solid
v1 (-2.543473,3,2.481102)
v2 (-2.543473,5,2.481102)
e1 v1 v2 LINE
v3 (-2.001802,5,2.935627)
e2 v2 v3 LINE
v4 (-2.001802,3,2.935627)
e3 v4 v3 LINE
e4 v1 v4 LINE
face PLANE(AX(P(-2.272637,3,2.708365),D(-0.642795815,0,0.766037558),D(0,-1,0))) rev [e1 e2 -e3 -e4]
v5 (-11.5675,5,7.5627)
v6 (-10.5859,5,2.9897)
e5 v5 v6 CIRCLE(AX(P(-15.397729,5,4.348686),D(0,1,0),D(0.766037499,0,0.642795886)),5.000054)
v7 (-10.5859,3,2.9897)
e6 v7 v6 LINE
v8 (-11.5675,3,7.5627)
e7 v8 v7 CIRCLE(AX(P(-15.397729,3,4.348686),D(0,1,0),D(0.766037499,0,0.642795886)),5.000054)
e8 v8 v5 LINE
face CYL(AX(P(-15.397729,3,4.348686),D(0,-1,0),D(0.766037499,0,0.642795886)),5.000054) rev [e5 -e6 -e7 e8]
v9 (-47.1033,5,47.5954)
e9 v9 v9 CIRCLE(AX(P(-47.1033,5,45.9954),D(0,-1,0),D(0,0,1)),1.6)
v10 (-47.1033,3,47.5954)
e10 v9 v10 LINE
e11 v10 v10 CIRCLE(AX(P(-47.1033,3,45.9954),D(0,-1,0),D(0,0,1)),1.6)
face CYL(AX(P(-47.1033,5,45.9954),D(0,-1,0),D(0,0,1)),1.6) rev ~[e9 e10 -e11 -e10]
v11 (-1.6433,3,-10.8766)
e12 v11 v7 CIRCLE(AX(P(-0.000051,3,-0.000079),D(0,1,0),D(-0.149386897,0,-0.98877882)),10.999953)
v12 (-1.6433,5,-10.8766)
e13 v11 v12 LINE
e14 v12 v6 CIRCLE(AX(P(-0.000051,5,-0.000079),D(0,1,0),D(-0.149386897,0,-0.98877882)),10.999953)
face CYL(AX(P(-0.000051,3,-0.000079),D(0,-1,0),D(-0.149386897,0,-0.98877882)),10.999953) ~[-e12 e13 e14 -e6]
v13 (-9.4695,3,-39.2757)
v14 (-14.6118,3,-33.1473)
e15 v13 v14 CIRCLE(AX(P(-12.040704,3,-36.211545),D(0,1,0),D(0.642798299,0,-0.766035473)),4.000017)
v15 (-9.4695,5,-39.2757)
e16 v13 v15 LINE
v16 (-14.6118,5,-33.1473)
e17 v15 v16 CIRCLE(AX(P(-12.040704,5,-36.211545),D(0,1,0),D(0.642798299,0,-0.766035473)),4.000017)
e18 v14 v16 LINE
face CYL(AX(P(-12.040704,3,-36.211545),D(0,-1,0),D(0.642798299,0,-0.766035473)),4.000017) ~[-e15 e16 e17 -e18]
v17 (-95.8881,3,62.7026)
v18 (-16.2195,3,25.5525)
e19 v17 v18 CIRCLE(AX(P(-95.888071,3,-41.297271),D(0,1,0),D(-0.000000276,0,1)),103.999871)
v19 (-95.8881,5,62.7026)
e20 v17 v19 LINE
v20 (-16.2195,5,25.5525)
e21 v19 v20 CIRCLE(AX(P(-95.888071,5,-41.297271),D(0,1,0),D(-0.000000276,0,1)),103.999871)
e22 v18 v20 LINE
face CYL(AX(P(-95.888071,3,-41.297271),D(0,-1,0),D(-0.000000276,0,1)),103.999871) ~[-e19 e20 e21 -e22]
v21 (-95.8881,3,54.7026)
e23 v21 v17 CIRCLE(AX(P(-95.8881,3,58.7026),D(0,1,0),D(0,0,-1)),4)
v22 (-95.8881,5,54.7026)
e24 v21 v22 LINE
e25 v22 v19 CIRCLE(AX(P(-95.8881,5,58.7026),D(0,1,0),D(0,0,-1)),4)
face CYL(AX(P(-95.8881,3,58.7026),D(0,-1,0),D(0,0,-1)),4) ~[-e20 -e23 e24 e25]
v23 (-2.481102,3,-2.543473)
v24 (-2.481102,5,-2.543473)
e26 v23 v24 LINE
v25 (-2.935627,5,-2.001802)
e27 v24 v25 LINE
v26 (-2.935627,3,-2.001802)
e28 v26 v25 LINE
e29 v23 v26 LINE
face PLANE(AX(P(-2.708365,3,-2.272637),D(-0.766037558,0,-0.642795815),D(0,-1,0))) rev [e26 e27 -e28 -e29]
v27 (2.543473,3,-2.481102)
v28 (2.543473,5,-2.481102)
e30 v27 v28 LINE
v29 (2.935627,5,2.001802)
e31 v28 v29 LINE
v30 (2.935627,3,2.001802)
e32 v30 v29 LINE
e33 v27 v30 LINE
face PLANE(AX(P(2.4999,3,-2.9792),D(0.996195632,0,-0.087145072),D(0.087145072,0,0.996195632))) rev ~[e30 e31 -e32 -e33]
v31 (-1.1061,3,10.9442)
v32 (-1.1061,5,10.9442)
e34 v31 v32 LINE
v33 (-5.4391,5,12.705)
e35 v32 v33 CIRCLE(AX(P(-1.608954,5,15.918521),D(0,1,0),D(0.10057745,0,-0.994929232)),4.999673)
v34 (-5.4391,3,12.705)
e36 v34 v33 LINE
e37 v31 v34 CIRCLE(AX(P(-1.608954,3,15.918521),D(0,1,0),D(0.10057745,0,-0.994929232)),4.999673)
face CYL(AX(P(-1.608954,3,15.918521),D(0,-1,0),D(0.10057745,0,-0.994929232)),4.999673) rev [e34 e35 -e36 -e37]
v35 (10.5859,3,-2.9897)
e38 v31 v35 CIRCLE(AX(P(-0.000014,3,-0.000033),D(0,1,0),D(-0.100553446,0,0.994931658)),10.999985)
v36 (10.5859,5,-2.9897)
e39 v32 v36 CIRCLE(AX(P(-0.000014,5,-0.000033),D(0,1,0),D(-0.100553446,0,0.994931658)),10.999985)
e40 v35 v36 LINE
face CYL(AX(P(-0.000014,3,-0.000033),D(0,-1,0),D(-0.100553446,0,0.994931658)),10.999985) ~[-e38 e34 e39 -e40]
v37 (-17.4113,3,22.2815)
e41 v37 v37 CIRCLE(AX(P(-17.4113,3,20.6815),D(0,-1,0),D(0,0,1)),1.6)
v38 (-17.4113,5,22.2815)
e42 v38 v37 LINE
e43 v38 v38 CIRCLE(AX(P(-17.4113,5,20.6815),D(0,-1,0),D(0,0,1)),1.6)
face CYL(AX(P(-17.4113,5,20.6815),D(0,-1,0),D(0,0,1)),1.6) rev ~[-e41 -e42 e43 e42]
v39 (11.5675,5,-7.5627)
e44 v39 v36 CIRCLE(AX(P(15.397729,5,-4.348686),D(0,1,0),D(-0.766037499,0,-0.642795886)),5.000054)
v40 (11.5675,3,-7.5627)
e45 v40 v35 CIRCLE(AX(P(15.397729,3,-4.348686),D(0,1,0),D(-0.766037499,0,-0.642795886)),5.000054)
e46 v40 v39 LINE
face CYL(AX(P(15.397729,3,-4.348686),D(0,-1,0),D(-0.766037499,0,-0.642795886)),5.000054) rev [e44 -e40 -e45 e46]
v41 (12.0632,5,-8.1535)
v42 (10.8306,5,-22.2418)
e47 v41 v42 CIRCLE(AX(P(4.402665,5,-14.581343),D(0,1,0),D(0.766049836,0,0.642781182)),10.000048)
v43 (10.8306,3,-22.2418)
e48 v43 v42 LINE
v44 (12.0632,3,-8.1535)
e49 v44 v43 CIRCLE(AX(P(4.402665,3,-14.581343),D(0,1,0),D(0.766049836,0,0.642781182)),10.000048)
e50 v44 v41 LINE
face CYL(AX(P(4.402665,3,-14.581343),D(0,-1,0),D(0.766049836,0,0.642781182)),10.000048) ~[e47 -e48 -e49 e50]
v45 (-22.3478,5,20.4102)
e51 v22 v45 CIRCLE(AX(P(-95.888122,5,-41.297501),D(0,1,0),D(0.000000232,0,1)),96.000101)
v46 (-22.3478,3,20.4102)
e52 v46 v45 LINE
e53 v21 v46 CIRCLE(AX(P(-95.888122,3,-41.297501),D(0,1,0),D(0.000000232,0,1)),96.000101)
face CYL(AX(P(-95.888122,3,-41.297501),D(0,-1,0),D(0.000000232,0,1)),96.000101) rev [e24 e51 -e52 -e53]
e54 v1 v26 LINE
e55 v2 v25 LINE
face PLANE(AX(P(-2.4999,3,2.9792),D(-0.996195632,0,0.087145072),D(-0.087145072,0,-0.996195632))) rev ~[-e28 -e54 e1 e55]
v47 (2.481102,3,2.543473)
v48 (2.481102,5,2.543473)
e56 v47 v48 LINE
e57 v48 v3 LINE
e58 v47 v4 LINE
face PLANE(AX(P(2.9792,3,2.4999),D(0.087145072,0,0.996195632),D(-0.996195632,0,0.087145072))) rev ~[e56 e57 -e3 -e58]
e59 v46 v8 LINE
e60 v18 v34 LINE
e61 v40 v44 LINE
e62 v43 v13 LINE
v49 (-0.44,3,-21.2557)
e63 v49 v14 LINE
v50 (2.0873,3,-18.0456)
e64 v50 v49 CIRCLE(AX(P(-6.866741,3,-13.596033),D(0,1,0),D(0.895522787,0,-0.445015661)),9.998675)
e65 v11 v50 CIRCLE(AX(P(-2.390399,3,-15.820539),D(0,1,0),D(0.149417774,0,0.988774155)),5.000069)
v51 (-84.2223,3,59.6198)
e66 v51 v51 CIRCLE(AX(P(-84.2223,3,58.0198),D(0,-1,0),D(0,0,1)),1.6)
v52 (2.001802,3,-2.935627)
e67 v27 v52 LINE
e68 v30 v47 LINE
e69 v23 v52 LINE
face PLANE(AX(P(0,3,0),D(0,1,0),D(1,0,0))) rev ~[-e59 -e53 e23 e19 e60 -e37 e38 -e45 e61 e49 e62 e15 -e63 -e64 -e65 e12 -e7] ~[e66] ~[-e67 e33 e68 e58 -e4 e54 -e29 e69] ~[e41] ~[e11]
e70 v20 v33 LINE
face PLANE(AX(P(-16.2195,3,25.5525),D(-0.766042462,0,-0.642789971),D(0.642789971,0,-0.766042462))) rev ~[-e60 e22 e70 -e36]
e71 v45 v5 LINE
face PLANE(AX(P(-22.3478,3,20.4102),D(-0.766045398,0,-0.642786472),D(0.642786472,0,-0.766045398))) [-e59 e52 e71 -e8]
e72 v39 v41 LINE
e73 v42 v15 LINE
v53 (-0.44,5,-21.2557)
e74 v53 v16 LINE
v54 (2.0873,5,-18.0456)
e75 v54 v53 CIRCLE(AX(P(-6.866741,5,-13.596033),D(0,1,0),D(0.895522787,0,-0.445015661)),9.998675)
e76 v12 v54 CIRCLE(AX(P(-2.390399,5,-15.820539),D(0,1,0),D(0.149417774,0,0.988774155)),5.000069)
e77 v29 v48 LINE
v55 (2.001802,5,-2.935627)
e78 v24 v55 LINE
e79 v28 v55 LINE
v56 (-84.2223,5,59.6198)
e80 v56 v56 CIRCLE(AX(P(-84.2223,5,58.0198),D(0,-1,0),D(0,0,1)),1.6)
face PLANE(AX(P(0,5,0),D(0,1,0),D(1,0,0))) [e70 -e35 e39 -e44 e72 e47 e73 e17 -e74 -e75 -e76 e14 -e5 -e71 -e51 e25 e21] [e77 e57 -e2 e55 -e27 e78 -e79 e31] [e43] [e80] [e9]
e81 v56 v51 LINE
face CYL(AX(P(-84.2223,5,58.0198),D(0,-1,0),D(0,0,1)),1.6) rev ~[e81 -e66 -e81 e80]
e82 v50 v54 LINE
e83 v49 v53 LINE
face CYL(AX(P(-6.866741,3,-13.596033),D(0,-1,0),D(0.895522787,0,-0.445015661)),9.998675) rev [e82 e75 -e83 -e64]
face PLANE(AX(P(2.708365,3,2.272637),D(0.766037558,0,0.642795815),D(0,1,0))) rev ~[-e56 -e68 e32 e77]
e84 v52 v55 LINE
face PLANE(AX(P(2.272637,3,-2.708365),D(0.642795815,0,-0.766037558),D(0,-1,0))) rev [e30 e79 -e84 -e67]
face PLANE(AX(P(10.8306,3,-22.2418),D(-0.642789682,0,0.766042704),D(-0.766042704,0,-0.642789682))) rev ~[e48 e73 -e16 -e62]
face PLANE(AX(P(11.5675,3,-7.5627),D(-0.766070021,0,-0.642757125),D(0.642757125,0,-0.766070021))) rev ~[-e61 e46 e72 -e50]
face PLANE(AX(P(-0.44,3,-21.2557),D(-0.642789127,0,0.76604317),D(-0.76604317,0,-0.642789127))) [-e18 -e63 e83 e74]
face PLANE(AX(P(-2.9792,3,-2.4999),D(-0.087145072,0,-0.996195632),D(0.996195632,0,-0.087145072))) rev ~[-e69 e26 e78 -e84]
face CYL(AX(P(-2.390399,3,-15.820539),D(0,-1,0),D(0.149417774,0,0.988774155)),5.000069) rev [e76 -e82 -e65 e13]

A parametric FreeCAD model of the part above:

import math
import FreeCAD as App
import Part
import Sketcher
Q = App.Units.Quantity


def edges_at(feature, points):
    """Names of the edges that pass closest to the given points."""
    edges = feature.Shape.Edges
    near = lambda p: min(range(len(edges)), key=lambda i: edges[i].distToShape(Part.Vertex(*p))[0])
    return sorted({f"Edge{near(p) + 1}" for p in points})

doc = App.newDocument("Part")
body = doc.addObject("PartDesign::Body", "Body")

# Sketch on XZ plane
sketch1 = body.newObject("Sketcher::SketchObject", "Sketch")
sketch1.AttachmentSupport = (doc.getObject("XZ_Plane"), [""])
sketch1.MapMode = "FlatFace"
sketch1.AttachmentOffset = App.Placement(App.Vector(0, 0, -3), App.Rotation())
sketch1.addGeometry([
    Part.ArcOfCircle(Part.Circle(App.Vector(-95.9, -41.3, 0), App.Vector(0, 0, 1), 96), math.radians(40), math.radians(90)),  # 0
    Part.ArcOfCircle(Part.Circle(App.Vector(-95.9, 58.7, 0), App.Vector(0, 0, 1), 4), math.radians(90), math.radians(270)),  # 1
    Part.ArcOfCircle(Part.Circle(App.Vector(-95.9, -41.3, 0), App.Vector(0, 0, 1), 104), math.radians(40), math.radians(90)),  # 2
    Part.LineSegment(App.Vector(-16.2, 25.6, 0), App.Vector(-5.4, 12.7, 0)),  # 3
    Part.ArcOfCircle(Part.Circle(App.Vector(-1.6, 15.9, 0), App.Vector(0, 0, 1), 5), math.radians(-140), math.radians(-84)),  # 4
    Part.ArcOfCircle(Part.Circle(App.Vector(0, 0, 0), App.Vector(0, 0, 1), 11), math.radians(-16), math.radians(96)),  # 5
    Part.ArcOfCircle(Part.Circle(App.Vector(15.4, -4.3, 0), App.Vector(0, 0, 1), 5), math.radians(164), math.radians(220)),  # 6
    Part.LineSegment(App.Vector(11.6, -7.6, 0), App.Vector(12.1, -8.2, 0)),  # 7
    Part.ArcOfCircle(Part.Circle(App.Vector(4.4, -14.6, 0), App.Vector(0, 0, 1), 10), math.radians(-50), math.radians(40)),  # 8
    Part.LineSegment(App.Vector(10.8, -22.2, 0), App.Vector(-9.5, -39.3, 0)),  # 9
    Part.ArcOfCircle(Part.Circle(App.Vector(-12, -36.2, 0), App.Vector(0, 0, 1), 4), math.radians(130), math.radians(310)),  # 10
    Part.LineSegment(App.Vector(-14.6, -33.1, 0), App.Vector(-0.4, -21.3, 0)),  # 11
    Part.ArcOfCircle(Part.Circle(App.Vector(-6.9, -13.6, 0), App.Vector(0, 0, 1), 10), math.radians(-50), math.radians(-26)),  # 12
    Part.ArcOfCircle(Part.Circle(App.Vector(-2.4, -15.8, 0), App.Vector(0, 0, 1), 5), math.radians(-26), math.radians(81)),  # 13
    Part.ArcOfCircle(Part.Circle(App.Vector(0, 0, 0), App.Vector(0, 0, 1), 11), math.radians(164), math.radians(261)),  # 14
    Part.ArcOfCircle(Part.Circle(App.Vector(-15.4, 4.3, 0), App.Vector(0, 0, 1), 5), math.radians(-16), math.radians(40)),  # 15
    Part.LineSegment(App.Vector(-11.6, 7.6, 0), App.Vector(-22.3, 20.4, 0)),  # 16
    Part.LineSegment(App.Vector(2.5, -3, 0), App.Vector(3, 2.5, 0)),  # 17
    Part.LineSegment(App.Vector(3, 2.5, 0), App.Vector(-2.5, 3, 0)),  # 18
    Part.LineSegment(App.Vector(-2.5, 3, 0), App.Vector(-3, -2.5, 0)),  # 19
    Part.LineSegment(App.Vector(-3, -2.5, 0), App.Vector(2.5, -3, 0)),  # 20
], False)
sketch1.addConstraint([
    Sketcher.Constraint("Tangent", 0, 2, 1, 2),
    Sketcher.Constraint("Tangent", 1, 1, 2, 2),
    Sketcher.Constraint("Tangent", 2, 1, 3, 1),
    Sketcher.Constraint("Tangent", 3, 2, 4, 1),
    Sketcher.Constraint("Tangent", 4, 2, 5, 2),
    Sketcher.Constraint("Tangent", 5, 1, 6, 1),
    Sketcher.Constraint("Tangent", 6, 2, 7, 1),
    Sketcher.Constraint("Tangent", 7, 2, 8, 2),
    Sketcher.Constraint("Tangent", 8, 1, 9, 1),
    Sketcher.Constraint("Tangent", 9, 2, 10, 2),
    Sketcher.Constraint("Tangent", 10, 1, 11, 1),
    Sketcher.Constraint("Tangent", 11, 2, 12, 1),
    Sketcher.Constraint("Tangent", 12, 2, 13, 1),
    Sketcher.Constraint("Tangent", 13, 2, 14, 2),
    Sketcher.Constraint("Tangent", 14, 1, 15, 1),
    Sketcher.Constraint("Tangent", 15, 2, 16, 1),
    Sketcher.Constraint("Tangent", 16, 2, 0, 1),
    Sketcher.Constraint("Coincident", 17, 2, 18, 1),
    Sketcher.Constraint("Coincident", 18, 2, 19, 1),
    Sketcher.Constraint("Coincident", 19, 2, 20, 1),
    Sketcher.Constraint("Coincident", 20, 2, 17, 1),
    Sketcher.Constraint("Coincident", 5, 3, -1, 1),
    Sketcher.Constraint("Coincident", 14, 3, -1, 1),
    Sketcher.Constraint("Coincident", 2, 3, 0, 3),
    Sketcher.Constraint("Equal", 4, 6),
    Sketcher.Constraint("Equal", 1, 10),
    Sketcher.Constraint("Equal", 6, 13),
    Sketcher.Constraint("Equal", 5, 14),
    Sketcher.Constraint("Equal", 13, 15),
    Sketcher.Constraint("Symmetric", 6, 2, 15, 2, -1, 1),
    Sketcher.Constraint("Symmetric", 17, 2, 19, 2, -1, 1),
    Sketcher.Constraint("Symmetric", 18, 2, 20, 2, -1, 1),
    Sketcher.Constraint("Parallel", 3, 7),
    Sketcher.Constraint("Perpendicular", 7, 9),
    Sketcher.Constraint("Parallel", 9, 11),
    Sketcher.Constraint("Perpendicular", 17, 18),
    Sketcher.Constraint("Vertical", 0, 3, 1, 3),
    Sketcher.Constraint("Equal", 3, 16),
    Sketcher.Constraint("Equal", 17, 18),
    Sketcher.Constraint("Radius", 1, Q("4 mm")),
    Sketcher.Constraint("Radius", 4, Q("5 mm")),
    Sketcher.Constraint("Radius", 5, Q("11 mm")),
    Sketcher.Constraint("Radius", 8, Q("10 mm")),
    Sketcher.Constraint("Angle", 3, Q("-49.9998 deg")),
    Sketcher.Constraint("Radius", 0, Q("96 mm")),
    Sketcher.Constraint("Distance", 17, Q("5.5 mm")),
    Sketcher.Constraint("Angle", 17, Q("85.0006 deg")),
    Sketcher.Constraint("Distance", 9, Q("26.5 mm")),
    Sketcher.Constraint("Distance", 11, Q("18.5 mm")),
    Sketcher.Constraint("Radius", 12, Q("9.9987 mm")),
    Sketcher.Constraint("DistanceX", 11, 2, -1, 1, Q("0.44 mm")),
    Sketcher.Constraint("DistanceX", 16, 2, 15, 3, Q("6.95 mm")),
])
pad1 = body.newObject("PartDesign::Pad", "Pad")
pad1.Profile = sketch1
pad1.Length = 2
pad1.Reversed = True
doc.recompute()

chamfer = body.newObject("PartDesign::Chamfer", "Chamfer")
chamfer.Base = (pad1, edges_at(pad1, [
    (2.5, 4, -2.979),
    (-2.979, 4, -2.5),
    (-2.5, 4, 2.979),
    (2.979, 4, 2.5),
]))
chamfer.Size = 0.5

# Sketch on XZ plane
sketch2 = body.newObject("Sketcher::SketchObject", "Sketch001")
sketch2.AttachmentSupport = (doc.getObject("XZ_Plane"), [""])
sketch2.MapMode = "FlatFace"
sketch2.AttachmentOffset = App.Placement(App.Vector(0, 0, -5), App.Rotation())
sketch2.addGeometry([
    Part.Circle(App.Vector(-84.2, 58, 0), App.Vector(0, 0, 1), 1.6),
    Part.Circle(App.Vector(-17.4, 20.7, 0), App.Vector(0, 0, 1), 1.6),
    Part.Circle(App.Vector(-47.1, 46, 0), App.Vector(0, 0, 1), 1.6),
], False)
sketch2.addConstraint([
    Sketcher.Constraint("Equal", 0, 1),
    Sketcher.Constraint("Equal", 1, 2),
    Sketcher.Constraint("Diameter", 0, Q("3.2 mm")),
    Sketcher.Constraint("DistanceX", 0, 3, 1, 3, Q("66.811 mm")),
    Sketcher.Constraint("DistanceX", 0, 3, 2, 3, Q("37.119 mm")),
    Sketcher.Constraint("DistanceY", 1, 3, 2, 3, Q("25.314 mm")),
    Sketcher.Constraint("DistanceX", 0, 3, -1, 1, Q("84.2223 mm")),
    Sketcher.Constraint("DistanceY", -1, 1, 0, 3, Q("58.0198 mm")),
    Sketcher.Constraint("DistanceY", -1, 1, 1, 3, Q("20.6815 mm")),
])
doc.recompute()
hole = body.newObject("PartDesign::Hole", "Hole")
hole.Profile = sketch2
hole.ThreadType = "None"
hole.Diameter = 3.2
hole.DepthType = "ThroughAll"
hole.Reversed = True

doc.recompute()
